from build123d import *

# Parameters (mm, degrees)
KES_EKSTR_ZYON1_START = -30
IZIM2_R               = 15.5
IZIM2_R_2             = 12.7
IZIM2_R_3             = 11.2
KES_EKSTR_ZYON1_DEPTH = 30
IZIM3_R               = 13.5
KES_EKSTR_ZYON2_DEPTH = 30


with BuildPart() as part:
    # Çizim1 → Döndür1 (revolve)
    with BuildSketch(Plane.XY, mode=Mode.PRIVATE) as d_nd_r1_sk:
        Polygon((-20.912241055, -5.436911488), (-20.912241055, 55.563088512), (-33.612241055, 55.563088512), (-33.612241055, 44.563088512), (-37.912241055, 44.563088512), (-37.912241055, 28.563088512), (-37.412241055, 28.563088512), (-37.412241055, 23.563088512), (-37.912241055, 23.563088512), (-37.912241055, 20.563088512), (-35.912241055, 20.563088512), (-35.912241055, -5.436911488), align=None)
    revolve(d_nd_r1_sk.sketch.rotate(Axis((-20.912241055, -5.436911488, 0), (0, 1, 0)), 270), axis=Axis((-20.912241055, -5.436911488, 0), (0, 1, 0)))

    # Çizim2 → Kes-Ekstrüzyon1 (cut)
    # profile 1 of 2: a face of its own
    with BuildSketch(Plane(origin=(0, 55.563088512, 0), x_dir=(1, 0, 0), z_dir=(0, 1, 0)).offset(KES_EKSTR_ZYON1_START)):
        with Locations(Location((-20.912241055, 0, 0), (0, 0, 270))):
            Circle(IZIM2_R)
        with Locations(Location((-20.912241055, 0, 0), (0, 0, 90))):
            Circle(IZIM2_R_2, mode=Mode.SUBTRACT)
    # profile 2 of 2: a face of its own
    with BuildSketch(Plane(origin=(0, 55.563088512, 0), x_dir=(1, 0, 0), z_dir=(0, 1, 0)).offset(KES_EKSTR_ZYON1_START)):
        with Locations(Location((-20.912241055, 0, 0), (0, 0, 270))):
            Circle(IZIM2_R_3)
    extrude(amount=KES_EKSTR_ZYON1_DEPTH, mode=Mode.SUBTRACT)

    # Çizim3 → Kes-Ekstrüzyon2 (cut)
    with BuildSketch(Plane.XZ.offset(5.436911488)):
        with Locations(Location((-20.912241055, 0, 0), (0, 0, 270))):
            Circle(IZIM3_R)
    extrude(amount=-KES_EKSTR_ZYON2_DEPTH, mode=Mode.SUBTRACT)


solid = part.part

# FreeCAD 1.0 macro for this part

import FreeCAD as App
import Part
import Sketcher
from FreeCAD import Vector

doc = App.newDocument("Part")
body = doc.addObject("PartDesign::Body", "Body")

# Sketch on XY plane
sketch1 = body.newObject("Sketcher::SketchObject", "Sketch")
sketch1.AttachmentSupport = (doc.getObject("XY_Plane"), [""])
sketch1.MapMode = "FlatFace"
sketch1.addGeometry(Part.LineSegment(Vector(-20.9, -5.4, 0), Vector(-20.9, 55.6, 0)), False)
sketch1.addGeometry(Part.LineSegment(Vector(-20.9, 55.6, 0), Vector(-33.6, 55.6, 0)), False)
sketch1.addGeometry(Part.LineSegment(Vector(-33.6, 55.6, 0), Vector(-33.6, 44.6, 0)), False)
sketch1.addGeometry(Part.LineSegment(Vector(-33.6, 44.6, 0), Vector(-37.9, 44.6, 0)), False)
sketch1.addGeometry(Part.LineSegment(Vector(-37.9, 44.6, 0), Vector(-37.9, 28.6, 0)), False)
sketch1.addGeometry(Part.LineSegment(Vector(-37.9, 28.6, 0), Vector(-37.4, 28.6, 0)), False)
sketch1.addGeometry(Part.LineSegment(Vector(-37.4, 28.6, 0), Vector(-37.4, 23.6, 0)), False)
sketch1.addGeometry(Part.LineSegment(Vector(-37.4, 23.6, 0), Vector(-37.9, 23.6, 0)), False)
sketch1.addGeometry(Part.LineSegment(Vector(-37.9, 23.6, 0), Vector(-37.9, 20.6, 0)), False)
sketch1.addGeometry(Part.LineSegment(Vector(-37.9, 20.6, 0), Vector(-35.9, 20.6, 0)), False)
sketch1.addGeometry(Part.LineSegment(Vector(-35.9, 20.6, 0), Vector(-35.9, -5.4, 0)), False)
sketch1.addGeometry(Part.LineSegment(Vector(-35.9, -5.4, 0), Vector(-20.9, -5.4, 0)), False)
sketch1.addGeometry(Part.LineSegment(Vector(-20.9, -5.4, 0), Vector(-20.9, 55.6, 0)), True)  # axis
sketch1.addConstraint(Sketcher.Constraint("Coincident", 0, 2, 1, 1))
sketch1.addConstraint(Sketcher.Constraint("Coincident", 1, 2, 2, 1))
sketch1.addConstraint(Sketcher.Constraint("Coincident", 2, 2, 3, 1))
sketch1.addConstraint(Sketcher.Constraint("Coincident", 3, 2, 4, 1))
sketch1.addConstraint(Sketcher.Constraint("Coincident", 4, 2, 5, 1))
sketch1.addConstraint(Sketcher.Constraint("Coincident", 5, 2, 6, 1))
sketch1.addConstraint(Sketcher.Constraint("Coincident", 6, 2, 7, 1))
sketch1.addConstraint(Sketcher.Constraint("Coincident", 7, 2, 8, 1))
sketch1.addConstraint(Sketcher.Constraint("Coincident", 8, 2, 9, 1))
sketch1.addConstraint(Sketcher.Constraint("Coincident", 9, 2, 10, 1))
sketch1.addConstraint(Sketcher.Constraint("Coincident", 10, 2, 11, 1))
sketch1.addConstraint(Sketcher.Constraint("Coincident", 11, 2, 0, 1))
sketch1.addConstraint(Sketcher.Constraint("Vertical", 0))
sketch1.addConstraint(Sketcher.Constraint("Horizontal", 1))
sketch1.addConstraint(Sketcher.Constraint("Vertical", 2))
sketch1.addConstraint(Sketcher.Constraint("Horizontal", 3))
sketch1.addConstraint(Sketcher.Constraint("Vertical", 4))
sketch1.addConstraint(Sketcher.Constraint("Horizontal", 5))
sketch1.addConstraint(Sketcher.Constraint("Vertical", 6))
sketch1.addConstraint(Sketcher.Constraint("Horizontal", 7))
sketch1.addConstraint(Sketcher.Constraint("Vertical", 8))
sketch1.addConstraint(Sketcher.Constraint("Horizontal", 9))
sketch1.addConstraint(Sketcher.Constraint("Vertical", 10))
sketch1.addConstraint(Sketcher.Constraint("Horizontal", 11))
sketch1.addConstraint(Sketcher.Constraint("Vertical", 12))
sketch1.addConstraint(Sketcher.Constraint("Coincident", 12, 1, 11, 2))
sketch1.addConstraint(Sketcher.Constraint("Horizontal", 1, 2, 12, 2))
sketch1.addConstraint(Sketcher.Constraint("Vertical", 4, 2, 7, 2))
sketch1.addConstraint(Sketcher.Constraint("DistanceX", 9, 1, 9, 2, 2.0))
sketch1.addConstraint(Sketcher.Constraint("DistanceX", 11, 1, 11, 2, 15.0))
sketch1.addConstraint(Sketcher.Constraint("DistanceY", 0, 1, 0, 2, 61.0))
sketch1.addConstraint(Sketcher.Constraint("DistanceY", 2, 2, 2, 1, 11.0))
sketch1.addConstraint(Sketcher.Constraint("DistanceY", 4, 2, 4, 1, 16.0))
sketch1.addConstraint(Sketcher.Constraint("DistanceY", 6, 2, 6, 1, 5.0))
sketch1.addConstraint(Sketcher.Constraint("DistanceY", 8, 2, 8, 1, 3.0))
sketch1.addConstraint(Sketcher.Constraint("DistanceX", 1, 2, 1, 1, 12.7))
sketch1.addConstraint(Sketcher.Constraint("DistanceX", 5, 1, 5, 2, 0.5))
sketch1.addConstraint(Sketcher.Constraint("DistanceX", 0, 2, -1, 1, 20.912241))
sketch1.addConstraint(Sketcher.Constraint("DistanceY", -1, 1, 0, 2, 55.563089))
revolution = body.newObject("PartDesign::Revolution", "Revolution")
revolution.Profile = sketch1
revolution.ReferenceAxis = (sketch1, ["Axis0"])
revolution.Angle = 360

# Sketch on XZ plane
sketch2 = body.newObject("Sketcher::SketchObject", "Sketch001")
sketch2.AttachmentSupport = (doc.getObject("XZ_Plane"), [""])
sketch2.MapMode = "FlatFace"
sketch2.AttachmentOffset = App.Placement(Vector(0, 0, -25.563089), App.Rotation())
sketch2.addGeometry(Part.Circle(Vector(-21, 0, 0), Vector(0, 0, 1), 16), False)
sketch2.addGeometry(Part.Circle(Vector(-21, 0, 0), Vector(0, 0, 1), 13), False)
sketch2.addGeometry(Part.Circle(Vector(-21, 0, 0), Vector(0, 0, 1), 11), False)
sketch2.addConstraint(Sketcher.Constraint("Coincident", 1, 3, 0, 3))
sketch2.addConstraint(Sketcher.Constraint("Coincident", 2, 3, 0, 3))
sketch2.addConstraint(Sketcher.Constraint("PointOnObject", 0, 3, -1))
sketch2.addConstraint(Sketcher.Constraint("Diameter", 0, 31.0))
sketch2.addConstraint(Sketcher.Constraint("Diameter", 1, 25.4))
sketch2.addConstraint(Sketcher.Constraint("Diameter", 2, 22.4))
sketch2.addConstraint(Sketcher.Constraint("DistanceX", 0, 3, -1, 1, 20.912241))
pocket1 = body.newObject("PartDesign::Pocket", "Pocket")
pocket1.Profile = sketch2
pocket1.Length = 30

# Sketch on XZ plane
sketch3 = body.newObject("Sketcher::SketchObject", "Sketch002")
sketch3.AttachmentSupport = (doc.getObject("XZ_Plane"), [""])
sketch3.MapMode = "FlatFace"
sketch3.AttachmentOffset = App.Placement(Vector(0, 0, 5.436911), App.Rotation())
sketch3.addGeometry(Part.Circle(Vector(-21, 0, 0), Vector(0, 0, 1), 14), False)
sketch3.addConstraint(Sketcher.Constraint("PointOnObject", 0, 3, -1))
sketch3.addConstraint(Sketcher.Constraint("Diameter", 0, 27.0))
sketch3.addConstraint(Sketcher.Constraint("DistanceX", 0, 3, -1, 1, 20.912241))
pocket2 = body.newObject("PartDesign::Pocket", "Pocket001")
pocket2.Profile = sketch3
pocket2.Length = 30

doc.recompute()
